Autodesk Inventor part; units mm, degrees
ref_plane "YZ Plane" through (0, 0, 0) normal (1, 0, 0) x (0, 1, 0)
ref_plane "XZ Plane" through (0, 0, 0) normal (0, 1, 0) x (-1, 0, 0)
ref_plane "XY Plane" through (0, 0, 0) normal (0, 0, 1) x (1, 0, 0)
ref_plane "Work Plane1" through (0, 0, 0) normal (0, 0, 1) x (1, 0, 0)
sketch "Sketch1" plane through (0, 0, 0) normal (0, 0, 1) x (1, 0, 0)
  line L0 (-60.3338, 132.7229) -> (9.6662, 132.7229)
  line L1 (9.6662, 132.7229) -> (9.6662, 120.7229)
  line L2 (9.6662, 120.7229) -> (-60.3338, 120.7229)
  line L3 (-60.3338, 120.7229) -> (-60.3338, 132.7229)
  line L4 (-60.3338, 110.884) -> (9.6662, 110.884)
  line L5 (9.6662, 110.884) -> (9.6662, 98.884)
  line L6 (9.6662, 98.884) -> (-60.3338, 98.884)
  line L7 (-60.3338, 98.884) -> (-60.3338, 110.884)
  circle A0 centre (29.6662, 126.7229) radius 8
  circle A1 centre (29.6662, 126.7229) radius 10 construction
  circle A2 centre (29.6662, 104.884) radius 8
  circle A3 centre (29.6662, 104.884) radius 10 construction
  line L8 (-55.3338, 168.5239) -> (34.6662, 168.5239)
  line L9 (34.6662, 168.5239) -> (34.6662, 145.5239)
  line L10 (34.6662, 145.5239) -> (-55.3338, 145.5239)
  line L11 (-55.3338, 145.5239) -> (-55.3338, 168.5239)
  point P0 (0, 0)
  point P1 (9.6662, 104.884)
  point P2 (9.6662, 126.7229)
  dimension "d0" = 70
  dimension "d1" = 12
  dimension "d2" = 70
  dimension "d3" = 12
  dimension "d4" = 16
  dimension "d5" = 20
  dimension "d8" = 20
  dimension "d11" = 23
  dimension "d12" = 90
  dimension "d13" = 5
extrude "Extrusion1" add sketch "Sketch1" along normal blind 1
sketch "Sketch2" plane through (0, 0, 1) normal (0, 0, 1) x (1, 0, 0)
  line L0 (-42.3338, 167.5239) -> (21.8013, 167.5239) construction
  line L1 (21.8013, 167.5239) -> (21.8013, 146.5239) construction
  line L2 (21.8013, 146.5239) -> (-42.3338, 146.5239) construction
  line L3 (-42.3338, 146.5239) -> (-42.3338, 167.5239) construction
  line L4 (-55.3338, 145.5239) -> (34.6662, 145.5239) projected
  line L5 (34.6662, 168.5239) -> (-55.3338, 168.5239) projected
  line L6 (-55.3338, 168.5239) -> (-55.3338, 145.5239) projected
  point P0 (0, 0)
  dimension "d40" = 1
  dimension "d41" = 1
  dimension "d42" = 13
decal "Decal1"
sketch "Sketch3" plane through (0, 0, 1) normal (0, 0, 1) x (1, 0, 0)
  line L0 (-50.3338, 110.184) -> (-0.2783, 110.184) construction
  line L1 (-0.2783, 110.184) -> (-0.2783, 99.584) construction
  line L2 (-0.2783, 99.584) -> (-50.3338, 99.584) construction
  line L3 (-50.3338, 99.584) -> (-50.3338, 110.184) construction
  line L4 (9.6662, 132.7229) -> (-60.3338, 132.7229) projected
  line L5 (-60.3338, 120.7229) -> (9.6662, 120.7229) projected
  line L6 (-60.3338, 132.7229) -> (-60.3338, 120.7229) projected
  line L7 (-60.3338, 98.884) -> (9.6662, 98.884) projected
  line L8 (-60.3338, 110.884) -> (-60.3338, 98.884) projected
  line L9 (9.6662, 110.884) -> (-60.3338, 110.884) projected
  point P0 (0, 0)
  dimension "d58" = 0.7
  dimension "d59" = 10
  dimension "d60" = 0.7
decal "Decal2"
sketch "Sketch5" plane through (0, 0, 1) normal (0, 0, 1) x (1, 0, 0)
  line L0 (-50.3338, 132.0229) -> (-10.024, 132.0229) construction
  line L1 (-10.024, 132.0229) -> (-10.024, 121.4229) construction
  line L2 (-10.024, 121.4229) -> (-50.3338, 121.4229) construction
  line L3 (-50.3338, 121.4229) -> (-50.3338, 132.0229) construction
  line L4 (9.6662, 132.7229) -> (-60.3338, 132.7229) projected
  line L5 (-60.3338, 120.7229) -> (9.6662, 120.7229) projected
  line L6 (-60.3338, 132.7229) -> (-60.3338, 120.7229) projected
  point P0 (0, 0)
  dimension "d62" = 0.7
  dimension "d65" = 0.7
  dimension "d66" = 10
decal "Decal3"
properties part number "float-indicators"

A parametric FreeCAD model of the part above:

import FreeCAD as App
import Part
import Sketcher

doc = App.newDocument("Part")
body = doc.addObject("PartDesign::Body", "Body")
body.AllowCompound = True

sketch1 = doc.addObject("Sketcher::SketchObject", "Sketch")
body.addObject(sketch1)
sketch1.AttachmentSupport = (doc.XY_Plane, [""])
sketch1.MapMode = "FlatFace"
sketch1.addGeometry(Part.LineSegment(App.Vector(10, 133, 0), App.Vector(-60, 133, 0)), False)
sketch1.addGeometry(Part.LineSegment(App.Vector(-60, 133, 0), App.Vector(-60, 121, 0)), False)
sketch1.addGeometry(Part.LineSegment(App.Vector(-60, 121, 0), App.Vector(10, 121, 0)), False)
sketch1.addGeometry(Part.LineSegment(App.Vector(10, 121, 0), App.Vector(10, 133, 0)), False)
sketch1.addGeometry(Part.LineSegment(App.Vector(10, 111, 0), App.Vector(-60, 111, 0)), False)
sketch1.addGeometry(Part.LineSegment(App.Vector(-60, 111, 0), App.Vector(-60, 99, 0)), False)
sketch1.addGeometry(Part.LineSegment(App.Vector(-60, 99, 0), App.Vector(10, 99, 0)), False)
sketch1.addGeometry(Part.LineSegment(App.Vector(10, 99, 0), App.Vector(10, 111, 0)), False)
sketch1.addGeometry(Part.Circle(App.Vector(30, 127, 0), App.Vector(0, 0, 1), 8), False)
sketch1.addGeometry(Part.Circle(App.Vector(30, 105, 0), App.Vector(0, 0, 1), 8), False)
sketch1.addGeometry(Part.LineSegment(App.Vector(35, 169, 0), App.Vector(-55, 169, 0)), False)
sketch1.addGeometry(Part.LineSegment(App.Vector(-55, 169, 0), App.Vector(-55, 146, 0)), False)
sketch1.addGeometry(Part.LineSegment(App.Vector(-55, 146, 0), App.Vector(35, 146, 0)), False)
sketch1.addGeometry(Part.LineSegment(App.Vector(35, 146, 0), App.Vector(35, 169, 0)), False)
sketch1.addConstraint(Sketcher.Constraint("Coincident", 0, 2, 1, 1))
sketch1.addConstraint(Sketcher.Constraint("Coincident", 1, 2, 2, 1))
sketch1.addConstraint(Sketcher.Constraint("Coincident", 2, 2, 3, 1))
sketch1.addConstraint(Sketcher.Constraint("Coincident", 3, 2, 0, 1))
sketch1.addConstraint(Sketcher.Constraint("Coincident", 4, 2, 5, 1))
sketch1.addConstraint(Sketcher.Constraint("Coincident", 5, 2, 6, 1))
sketch1.addConstraint(Sketcher.Constraint("Coincident", 6, 2, 7, 1))
sketch1.addConstraint(Sketcher.Constraint("Coincident", 7, 2, 4, 1))
sketch1.addConstraint(Sketcher.Constraint("Coincident", 10, 2, 11, 1))
sketch1.addConstraint(Sketcher.Constraint("Coincident", 11, 2, 12, 1))
sketch1.addConstraint(Sketcher.Constraint("Coincident", 12, 2, 13, 1))
sketch1.addConstraint(Sketcher.Constraint("Coincident", 13, 2, 10, 1))
sketch1.addConstraint(Sketcher.Constraint("Horizontal", 0))
sketch1.addConstraint(Sketcher.Constraint("Vertical", 1))
sketch1.addConstraint(Sketcher.Constraint("Horizontal", 2))
sketch1.addConstraint(Sketcher.Constraint("Vertical", 3))
sketch1.addConstraint(Sketcher.Constraint("Horizontal", 4))
sketch1.addConstraint(Sketcher.Constraint("Vertical", 5))
sketch1.addConstraint(Sketcher.Constraint("Horizontal", 6))
sketch1.addConstraint(Sketcher.Constraint("Vertical", 7))
sketch1.addConstraint(Sketcher.Constraint("Horizontal", 10))
sketch1.addConstraint(Sketcher.Constraint("Vertical", 11))
sketch1.addConstraint(Sketcher.Constraint("Horizontal", 12))
sketch1.addConstraint(Sketcher.Constraint("Vertical", 13))
sketch1.addConstraint(Sketcher.Constraint("Equal", 8, 9))
sketch1.addConstraint(Sketcher.Constraint("Vertical", 8, 3, 9, 3))
sketch1.addConstraint(Sketcher.Constraint("Vertical", 1, 2, 4, 2))
sketch1.addConstraint(Sketcher.Constraint("Vertical", 3, 2, 6, 2))
sketch1.addConstraint(Sketcher.Constraint("Equal", 3, 5))
sketch1.addConstraint(Sketcher.Constraint("Diameter", 8, 16.0))
sketch1.addConstraint(Sketcher.Constraint("DistanceX", 0, 2, 0, 1, 70.0))
sketch1.addConstraint(Sketcher.Constraint("DistanceX", 10, 2, 10, 1, 90.0))
sketch1.addConstraint(Sketcher.Constraint("DistanceY", 1, 2, 1, 1, 12.0))
sketch1.addConstraint(Sketcher.Constraint("DistanceY", 11, 2, 11, 1, 23.0))
sketch1.addConstraint(Sketcher.Constraint("DistanceX", 0, 2, 8, 3, 90.0))
sketch1.addConstraint(Sketcher.Constraint("DistanceX", 0, 2, 10, 2, 5.0))
sketch1.addConstraint(Sketcher.Constraint("DistanceY", 8, 3, 0, 2, 6.0))
sketch1.addConstraint(Sketcher.Constraint("DistanceY", 9, 3, 4, 2, 6.0))
sketch1.addConstraint(Sketcher.Constraint("DistanceY", 4, 2, 10, 2, 57.64))
sketch1.addConstraint(Sketcher.Constraint("DistanceY", -1, 1, 8, 3, 126.723))
sketch1.addConstraint(Sketcher.Constraint("DistanceY", -1, 1, 9, 3, 104.884))
sketch1.addConstraint(Sketcher.Constraint("DistanceX", -1, 1, 8, 3, 29.6662))
pad1 = doc.addObject("PartDesign::Pad", "Pad")
body.addObject(pad1)
pad1.Profile = sketch1
pad1.Length = 1

doc.recompute()
